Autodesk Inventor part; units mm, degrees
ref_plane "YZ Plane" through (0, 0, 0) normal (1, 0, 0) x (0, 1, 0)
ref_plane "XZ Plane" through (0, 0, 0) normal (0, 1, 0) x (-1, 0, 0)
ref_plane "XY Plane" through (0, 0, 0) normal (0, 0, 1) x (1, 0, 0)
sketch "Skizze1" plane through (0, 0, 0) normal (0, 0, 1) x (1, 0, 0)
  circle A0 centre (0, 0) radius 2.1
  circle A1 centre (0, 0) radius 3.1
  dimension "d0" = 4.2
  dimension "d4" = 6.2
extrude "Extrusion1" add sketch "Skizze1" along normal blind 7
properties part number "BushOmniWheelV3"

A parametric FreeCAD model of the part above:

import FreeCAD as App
import Part
import Sketcher
Q = App.Units.Quantity

doc = App.newDocument("Part")
body = doc.addObject("PartDesign::Body", "Body")

# Sketch on XY plane
sketch1 = body.newObject("Sketcher::SketchObject", "Sketch")
sketch1.AttachmentSupport = (doc.getObject("XY_Plane"), [""])
sketch1.MapMode = "FlatFace"
sketch1.addGeometry([
    Part.Circle(App.Vector(0, 0, 0), App.Vector(0, 0, 1), 3.1),
    Part.Circle(App.Vector(0, 0, 0), App.Vector(0, 0, 1), 2.1),
], False)
sketch1.addConstraint([
    Sketcher.Constraint("Coincident", 0, 3, -1, 1),
    Sketcher.Constraint("Coincident", 1, 3, -1, 1),
    Sketcher.Constraint("Diameter", 0, Q("6.2 mm")),
    Sketcher.Constraint("Diameter", 1, Q("4.2 mm")),
])
pad1 = body.newObject("PartDesign::Pad", "Pad")
pad1.Profile = sketch1
pad1.Length = 7

doc.recompute()
